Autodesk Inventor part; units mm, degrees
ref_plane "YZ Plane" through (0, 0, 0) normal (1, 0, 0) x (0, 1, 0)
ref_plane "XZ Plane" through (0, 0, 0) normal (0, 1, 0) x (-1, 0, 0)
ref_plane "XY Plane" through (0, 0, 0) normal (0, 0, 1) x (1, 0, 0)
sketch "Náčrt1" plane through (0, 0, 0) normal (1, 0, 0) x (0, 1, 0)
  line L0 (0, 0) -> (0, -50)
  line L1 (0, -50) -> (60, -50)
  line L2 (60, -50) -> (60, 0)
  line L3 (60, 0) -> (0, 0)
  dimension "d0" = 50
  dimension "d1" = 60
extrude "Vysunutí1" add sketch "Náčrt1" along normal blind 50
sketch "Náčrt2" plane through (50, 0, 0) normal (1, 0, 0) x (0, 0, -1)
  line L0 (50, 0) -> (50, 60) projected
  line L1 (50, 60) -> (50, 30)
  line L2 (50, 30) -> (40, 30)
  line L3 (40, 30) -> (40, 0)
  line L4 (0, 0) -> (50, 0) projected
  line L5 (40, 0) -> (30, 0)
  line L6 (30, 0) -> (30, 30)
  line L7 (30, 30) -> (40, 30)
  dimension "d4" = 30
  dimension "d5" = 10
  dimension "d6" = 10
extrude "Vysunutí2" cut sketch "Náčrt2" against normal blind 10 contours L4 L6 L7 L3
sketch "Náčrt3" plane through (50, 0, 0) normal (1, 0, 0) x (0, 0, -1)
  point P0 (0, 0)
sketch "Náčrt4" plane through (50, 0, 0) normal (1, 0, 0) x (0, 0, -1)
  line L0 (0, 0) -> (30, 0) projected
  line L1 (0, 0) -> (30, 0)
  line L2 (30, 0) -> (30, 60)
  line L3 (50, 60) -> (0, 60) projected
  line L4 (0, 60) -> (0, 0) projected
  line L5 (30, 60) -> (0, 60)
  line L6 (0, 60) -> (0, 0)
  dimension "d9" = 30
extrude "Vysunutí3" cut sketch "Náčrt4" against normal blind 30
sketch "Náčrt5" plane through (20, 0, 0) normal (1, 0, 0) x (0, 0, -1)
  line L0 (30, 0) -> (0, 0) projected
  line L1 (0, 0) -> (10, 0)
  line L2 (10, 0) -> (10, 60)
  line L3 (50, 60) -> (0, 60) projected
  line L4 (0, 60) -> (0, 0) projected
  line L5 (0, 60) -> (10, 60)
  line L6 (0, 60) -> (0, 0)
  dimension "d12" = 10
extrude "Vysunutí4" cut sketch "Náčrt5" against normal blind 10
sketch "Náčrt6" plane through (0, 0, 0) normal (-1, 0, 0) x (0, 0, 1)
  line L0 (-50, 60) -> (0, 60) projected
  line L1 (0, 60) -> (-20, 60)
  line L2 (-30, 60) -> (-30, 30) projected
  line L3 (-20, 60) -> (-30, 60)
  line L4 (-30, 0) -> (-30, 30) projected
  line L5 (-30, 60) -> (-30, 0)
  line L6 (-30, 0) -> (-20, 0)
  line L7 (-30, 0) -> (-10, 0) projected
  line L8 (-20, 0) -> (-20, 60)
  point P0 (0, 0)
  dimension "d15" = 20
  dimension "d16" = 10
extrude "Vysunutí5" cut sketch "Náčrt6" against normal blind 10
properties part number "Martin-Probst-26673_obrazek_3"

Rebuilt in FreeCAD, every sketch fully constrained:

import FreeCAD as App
import Part
import Sketcher

V = App.Vector
Q = App.Units.Quantity


def add_polygon(sketch, points):
    """Adds a closed chain of lines whose ends are joined by coincident constraints."""
    first, n = sketch.GeometryCount, len(points)
    for a, b in zip(points, points[1:] + points[:1]):
        sketch.addGeometry(Part.LineSegment(App.Vector(*a, 0), App.Vector(*b, 0)), False)
    for i in range(n):
        sketch.addConstraint(Sketcher.Constraint("Coincident", first + i, 2, first + (i + 1) % n, 1))

doc = App.newDocument("Part")
body = doc.addObject("PartDesign::Body", "Body")

# Sketch on YZ plane
sketch1 = body.newObject("Sketcher::SketchObject", "Sketch")
sketch1.AttachmentSupport = (doc.getObject("YZ_Plane"), [""])
sketch1.MapMode = "FlatFace"
add_polygon(sketch1, [(60, 0), (0, 0), (0, -50), (60, -50)])  # lines 0-3
sketch1.addConstraint([
    Sketcher.Constraint("Horizontal", 0),
    Sketcher.Constraint("Vertical", 1),
    Sketcher.Constraint("Horizontal", 2),
    Sketcher.Constraint("Vertical", 3),
    Sketcher.Constraint("Coincident", 0, 2, -1, 1),
    Sketcher.Constraint("DistanceX", 0, 2, 0, 1, Q("60 mm")),
    Sketcher.Constraint("DistanceY", 1, 2, 1, 1, Q("50 mm")),
])
pad1 = body.newObject("PartDesign::Pad", "Pad")
pad1.Profile = sketch1
pad1.Length = 50

# Sketch on YZ plane
sketch2 = body.newObject("Sketcher::SketchObject", "Sketch001")
sketch2.AttachmentSupport = (doc.getObject("YZ_Plane"), [""])
sketch2.MapMode = "FlatFace"
sketch2.AttachmentOffset = App.Placement(V(0, 0, 50), App.Rotation())
add_polygon(sketch2, [(0, -30), (0, -40), (30, -40), (30, -30)])  # lines 0-3
sketch2.addConstraint([
    Sketcher.Constraint("Vertical", 0),
    Sketcher.Constraint("Horizontal", 1),
    Sketcher.Constraint("Vertical", 2),
    Sketcher.Constraint("Horizontal", 3),
    Sketcher.Constraint("PointOnObject", 0, 2, -2),
    Sketcher.Constraint("DistanceX", 1, 1, 1, 2, Q("30 mm")),
    Sketcher.Constraint("DistanceY", 0, 2, 0, 1, Q("10 mm")),
    Sketcher.Constraint("DistanceY", 2, 2, -1, 1, Q("30 mm")),
])
pocket1 = body.newObject("PartDesign::Pocket", "Pocket")
pocket1.Profile = sketch2
pocket1.Length = 10

# Sketch on YZ plane
sketch3 = body.newObject("Sketcher::SketchObject", "Sketch002")
sketch3.AttachmentSupport = (doc.getObject("YZ_Plane"), [""])
sketch3.MapMode = "FlatFace"
sketch3.AttachmentOffset = App.Placement(V(0, 0, 50), App.Rotation())
add_polygon(sketch3, [(60, 0), (0, 0), (0, -30), (60, -30)])  # lines 0-3
sketch3.addConstraint([
    Sketcher.Constraint("Horizontal", 0),
    Sketcher.Constraint("Vertical", 1),
    Sketcher.Constraint("Horizontal", 2),
    Sketcher.Constraint("Vertical", 3),
    Sketcher.Constraint("Coincident", 0, 2, -1, 1),
    Sketcher.Constraint("DistanceY", 1, 2, 1, 1, Q("30 mm")),
    Sketcher.Constraint("DistanceX", 0, 2, 0, 1, Q("60 mm")),
])
pocket2 = body.newObject("PartDesign::Pocket", "Pocket001")
pocket2.Profile = sketch3
pocket2.Length = 30

# Sketch on YZ plane
sketch4 = body.newObject("Sketcher::SketchObject", "Sketch003")
sketch4.AttachmentSupport = (doc.getObject("YZ_Plane"), [""])
sketch4.MapMode = "FlatFace"
sketch4.AttachmentOffset = App.Placement(V(0, 0, 20), App.Rotation())
add_polygon(sketch4, [(0, 0), (0, -10), (60, -10), (60, 0)])  # lines 0-3
sketch4.addConstraint([
    Sketcher.Constraint("Vertical", 0),
    Sketcher.Constraint("Horizontal", 1),
    Sketcher.Constraint("Vertical", 2),
    Sketcher.Constraint("Horizontal", 3),
    Sketcher.Constraint("Coincident", 3, 2, -1, 1),
    Sketcher.Constraint("DistanceY", 0, 2, 0, 1, Q("10 mm")),
    Sketcher.Constraint("DistanceX", 1, 1, 1, 2, Q("60 mm")),
])
pocket3 = body.newObject("PartDesign::Pocket", "Pocket002")
pocket3.Profile = sketch4
pocket3.Length = 10

# Sketch on YZ plane
sketch5 = body.newObject("Sketcher::SketchObject", "Sketch004")
sketch5.AttachmentSupport = (doc.getObject("YZ_Plane"), [""])
sketch5.MapMode = "FlatFace"
add_polygon(sketch5, [(60, -20), (60, -30), (0, -30), (0, -20)])  # lines 0-3
sketch5.addConstraint([
    Sketcher.Constraint("Vertical", 0),
    Sketcher.Constraint("Horizontal", 1),
    Sketcher.Constraint("Vertical", 2),
    Sketcher.Constraint("Horizontal", 3),
    Sketcher.Constraint("PointOnObject", 1, 2, -2),
    Sketcher.Constraint("DistanceY", 0, 2, 0, 1, Q("10 mm")),
    Sketcher.Constraint("DistanceY", 2, 2, -1, 1, Q("20 mm")),
    Sketcher.Constraint("DistanceX", 1, 2, 1, 1, Q("60 mm")),
])
pocket4 = body.newObject("PartDesign::Pocket", "Pocket003")
pocket4.Profile = sketch5
pocket4.Length = 10
pocket4.Reversed = True

doc.recompute()
